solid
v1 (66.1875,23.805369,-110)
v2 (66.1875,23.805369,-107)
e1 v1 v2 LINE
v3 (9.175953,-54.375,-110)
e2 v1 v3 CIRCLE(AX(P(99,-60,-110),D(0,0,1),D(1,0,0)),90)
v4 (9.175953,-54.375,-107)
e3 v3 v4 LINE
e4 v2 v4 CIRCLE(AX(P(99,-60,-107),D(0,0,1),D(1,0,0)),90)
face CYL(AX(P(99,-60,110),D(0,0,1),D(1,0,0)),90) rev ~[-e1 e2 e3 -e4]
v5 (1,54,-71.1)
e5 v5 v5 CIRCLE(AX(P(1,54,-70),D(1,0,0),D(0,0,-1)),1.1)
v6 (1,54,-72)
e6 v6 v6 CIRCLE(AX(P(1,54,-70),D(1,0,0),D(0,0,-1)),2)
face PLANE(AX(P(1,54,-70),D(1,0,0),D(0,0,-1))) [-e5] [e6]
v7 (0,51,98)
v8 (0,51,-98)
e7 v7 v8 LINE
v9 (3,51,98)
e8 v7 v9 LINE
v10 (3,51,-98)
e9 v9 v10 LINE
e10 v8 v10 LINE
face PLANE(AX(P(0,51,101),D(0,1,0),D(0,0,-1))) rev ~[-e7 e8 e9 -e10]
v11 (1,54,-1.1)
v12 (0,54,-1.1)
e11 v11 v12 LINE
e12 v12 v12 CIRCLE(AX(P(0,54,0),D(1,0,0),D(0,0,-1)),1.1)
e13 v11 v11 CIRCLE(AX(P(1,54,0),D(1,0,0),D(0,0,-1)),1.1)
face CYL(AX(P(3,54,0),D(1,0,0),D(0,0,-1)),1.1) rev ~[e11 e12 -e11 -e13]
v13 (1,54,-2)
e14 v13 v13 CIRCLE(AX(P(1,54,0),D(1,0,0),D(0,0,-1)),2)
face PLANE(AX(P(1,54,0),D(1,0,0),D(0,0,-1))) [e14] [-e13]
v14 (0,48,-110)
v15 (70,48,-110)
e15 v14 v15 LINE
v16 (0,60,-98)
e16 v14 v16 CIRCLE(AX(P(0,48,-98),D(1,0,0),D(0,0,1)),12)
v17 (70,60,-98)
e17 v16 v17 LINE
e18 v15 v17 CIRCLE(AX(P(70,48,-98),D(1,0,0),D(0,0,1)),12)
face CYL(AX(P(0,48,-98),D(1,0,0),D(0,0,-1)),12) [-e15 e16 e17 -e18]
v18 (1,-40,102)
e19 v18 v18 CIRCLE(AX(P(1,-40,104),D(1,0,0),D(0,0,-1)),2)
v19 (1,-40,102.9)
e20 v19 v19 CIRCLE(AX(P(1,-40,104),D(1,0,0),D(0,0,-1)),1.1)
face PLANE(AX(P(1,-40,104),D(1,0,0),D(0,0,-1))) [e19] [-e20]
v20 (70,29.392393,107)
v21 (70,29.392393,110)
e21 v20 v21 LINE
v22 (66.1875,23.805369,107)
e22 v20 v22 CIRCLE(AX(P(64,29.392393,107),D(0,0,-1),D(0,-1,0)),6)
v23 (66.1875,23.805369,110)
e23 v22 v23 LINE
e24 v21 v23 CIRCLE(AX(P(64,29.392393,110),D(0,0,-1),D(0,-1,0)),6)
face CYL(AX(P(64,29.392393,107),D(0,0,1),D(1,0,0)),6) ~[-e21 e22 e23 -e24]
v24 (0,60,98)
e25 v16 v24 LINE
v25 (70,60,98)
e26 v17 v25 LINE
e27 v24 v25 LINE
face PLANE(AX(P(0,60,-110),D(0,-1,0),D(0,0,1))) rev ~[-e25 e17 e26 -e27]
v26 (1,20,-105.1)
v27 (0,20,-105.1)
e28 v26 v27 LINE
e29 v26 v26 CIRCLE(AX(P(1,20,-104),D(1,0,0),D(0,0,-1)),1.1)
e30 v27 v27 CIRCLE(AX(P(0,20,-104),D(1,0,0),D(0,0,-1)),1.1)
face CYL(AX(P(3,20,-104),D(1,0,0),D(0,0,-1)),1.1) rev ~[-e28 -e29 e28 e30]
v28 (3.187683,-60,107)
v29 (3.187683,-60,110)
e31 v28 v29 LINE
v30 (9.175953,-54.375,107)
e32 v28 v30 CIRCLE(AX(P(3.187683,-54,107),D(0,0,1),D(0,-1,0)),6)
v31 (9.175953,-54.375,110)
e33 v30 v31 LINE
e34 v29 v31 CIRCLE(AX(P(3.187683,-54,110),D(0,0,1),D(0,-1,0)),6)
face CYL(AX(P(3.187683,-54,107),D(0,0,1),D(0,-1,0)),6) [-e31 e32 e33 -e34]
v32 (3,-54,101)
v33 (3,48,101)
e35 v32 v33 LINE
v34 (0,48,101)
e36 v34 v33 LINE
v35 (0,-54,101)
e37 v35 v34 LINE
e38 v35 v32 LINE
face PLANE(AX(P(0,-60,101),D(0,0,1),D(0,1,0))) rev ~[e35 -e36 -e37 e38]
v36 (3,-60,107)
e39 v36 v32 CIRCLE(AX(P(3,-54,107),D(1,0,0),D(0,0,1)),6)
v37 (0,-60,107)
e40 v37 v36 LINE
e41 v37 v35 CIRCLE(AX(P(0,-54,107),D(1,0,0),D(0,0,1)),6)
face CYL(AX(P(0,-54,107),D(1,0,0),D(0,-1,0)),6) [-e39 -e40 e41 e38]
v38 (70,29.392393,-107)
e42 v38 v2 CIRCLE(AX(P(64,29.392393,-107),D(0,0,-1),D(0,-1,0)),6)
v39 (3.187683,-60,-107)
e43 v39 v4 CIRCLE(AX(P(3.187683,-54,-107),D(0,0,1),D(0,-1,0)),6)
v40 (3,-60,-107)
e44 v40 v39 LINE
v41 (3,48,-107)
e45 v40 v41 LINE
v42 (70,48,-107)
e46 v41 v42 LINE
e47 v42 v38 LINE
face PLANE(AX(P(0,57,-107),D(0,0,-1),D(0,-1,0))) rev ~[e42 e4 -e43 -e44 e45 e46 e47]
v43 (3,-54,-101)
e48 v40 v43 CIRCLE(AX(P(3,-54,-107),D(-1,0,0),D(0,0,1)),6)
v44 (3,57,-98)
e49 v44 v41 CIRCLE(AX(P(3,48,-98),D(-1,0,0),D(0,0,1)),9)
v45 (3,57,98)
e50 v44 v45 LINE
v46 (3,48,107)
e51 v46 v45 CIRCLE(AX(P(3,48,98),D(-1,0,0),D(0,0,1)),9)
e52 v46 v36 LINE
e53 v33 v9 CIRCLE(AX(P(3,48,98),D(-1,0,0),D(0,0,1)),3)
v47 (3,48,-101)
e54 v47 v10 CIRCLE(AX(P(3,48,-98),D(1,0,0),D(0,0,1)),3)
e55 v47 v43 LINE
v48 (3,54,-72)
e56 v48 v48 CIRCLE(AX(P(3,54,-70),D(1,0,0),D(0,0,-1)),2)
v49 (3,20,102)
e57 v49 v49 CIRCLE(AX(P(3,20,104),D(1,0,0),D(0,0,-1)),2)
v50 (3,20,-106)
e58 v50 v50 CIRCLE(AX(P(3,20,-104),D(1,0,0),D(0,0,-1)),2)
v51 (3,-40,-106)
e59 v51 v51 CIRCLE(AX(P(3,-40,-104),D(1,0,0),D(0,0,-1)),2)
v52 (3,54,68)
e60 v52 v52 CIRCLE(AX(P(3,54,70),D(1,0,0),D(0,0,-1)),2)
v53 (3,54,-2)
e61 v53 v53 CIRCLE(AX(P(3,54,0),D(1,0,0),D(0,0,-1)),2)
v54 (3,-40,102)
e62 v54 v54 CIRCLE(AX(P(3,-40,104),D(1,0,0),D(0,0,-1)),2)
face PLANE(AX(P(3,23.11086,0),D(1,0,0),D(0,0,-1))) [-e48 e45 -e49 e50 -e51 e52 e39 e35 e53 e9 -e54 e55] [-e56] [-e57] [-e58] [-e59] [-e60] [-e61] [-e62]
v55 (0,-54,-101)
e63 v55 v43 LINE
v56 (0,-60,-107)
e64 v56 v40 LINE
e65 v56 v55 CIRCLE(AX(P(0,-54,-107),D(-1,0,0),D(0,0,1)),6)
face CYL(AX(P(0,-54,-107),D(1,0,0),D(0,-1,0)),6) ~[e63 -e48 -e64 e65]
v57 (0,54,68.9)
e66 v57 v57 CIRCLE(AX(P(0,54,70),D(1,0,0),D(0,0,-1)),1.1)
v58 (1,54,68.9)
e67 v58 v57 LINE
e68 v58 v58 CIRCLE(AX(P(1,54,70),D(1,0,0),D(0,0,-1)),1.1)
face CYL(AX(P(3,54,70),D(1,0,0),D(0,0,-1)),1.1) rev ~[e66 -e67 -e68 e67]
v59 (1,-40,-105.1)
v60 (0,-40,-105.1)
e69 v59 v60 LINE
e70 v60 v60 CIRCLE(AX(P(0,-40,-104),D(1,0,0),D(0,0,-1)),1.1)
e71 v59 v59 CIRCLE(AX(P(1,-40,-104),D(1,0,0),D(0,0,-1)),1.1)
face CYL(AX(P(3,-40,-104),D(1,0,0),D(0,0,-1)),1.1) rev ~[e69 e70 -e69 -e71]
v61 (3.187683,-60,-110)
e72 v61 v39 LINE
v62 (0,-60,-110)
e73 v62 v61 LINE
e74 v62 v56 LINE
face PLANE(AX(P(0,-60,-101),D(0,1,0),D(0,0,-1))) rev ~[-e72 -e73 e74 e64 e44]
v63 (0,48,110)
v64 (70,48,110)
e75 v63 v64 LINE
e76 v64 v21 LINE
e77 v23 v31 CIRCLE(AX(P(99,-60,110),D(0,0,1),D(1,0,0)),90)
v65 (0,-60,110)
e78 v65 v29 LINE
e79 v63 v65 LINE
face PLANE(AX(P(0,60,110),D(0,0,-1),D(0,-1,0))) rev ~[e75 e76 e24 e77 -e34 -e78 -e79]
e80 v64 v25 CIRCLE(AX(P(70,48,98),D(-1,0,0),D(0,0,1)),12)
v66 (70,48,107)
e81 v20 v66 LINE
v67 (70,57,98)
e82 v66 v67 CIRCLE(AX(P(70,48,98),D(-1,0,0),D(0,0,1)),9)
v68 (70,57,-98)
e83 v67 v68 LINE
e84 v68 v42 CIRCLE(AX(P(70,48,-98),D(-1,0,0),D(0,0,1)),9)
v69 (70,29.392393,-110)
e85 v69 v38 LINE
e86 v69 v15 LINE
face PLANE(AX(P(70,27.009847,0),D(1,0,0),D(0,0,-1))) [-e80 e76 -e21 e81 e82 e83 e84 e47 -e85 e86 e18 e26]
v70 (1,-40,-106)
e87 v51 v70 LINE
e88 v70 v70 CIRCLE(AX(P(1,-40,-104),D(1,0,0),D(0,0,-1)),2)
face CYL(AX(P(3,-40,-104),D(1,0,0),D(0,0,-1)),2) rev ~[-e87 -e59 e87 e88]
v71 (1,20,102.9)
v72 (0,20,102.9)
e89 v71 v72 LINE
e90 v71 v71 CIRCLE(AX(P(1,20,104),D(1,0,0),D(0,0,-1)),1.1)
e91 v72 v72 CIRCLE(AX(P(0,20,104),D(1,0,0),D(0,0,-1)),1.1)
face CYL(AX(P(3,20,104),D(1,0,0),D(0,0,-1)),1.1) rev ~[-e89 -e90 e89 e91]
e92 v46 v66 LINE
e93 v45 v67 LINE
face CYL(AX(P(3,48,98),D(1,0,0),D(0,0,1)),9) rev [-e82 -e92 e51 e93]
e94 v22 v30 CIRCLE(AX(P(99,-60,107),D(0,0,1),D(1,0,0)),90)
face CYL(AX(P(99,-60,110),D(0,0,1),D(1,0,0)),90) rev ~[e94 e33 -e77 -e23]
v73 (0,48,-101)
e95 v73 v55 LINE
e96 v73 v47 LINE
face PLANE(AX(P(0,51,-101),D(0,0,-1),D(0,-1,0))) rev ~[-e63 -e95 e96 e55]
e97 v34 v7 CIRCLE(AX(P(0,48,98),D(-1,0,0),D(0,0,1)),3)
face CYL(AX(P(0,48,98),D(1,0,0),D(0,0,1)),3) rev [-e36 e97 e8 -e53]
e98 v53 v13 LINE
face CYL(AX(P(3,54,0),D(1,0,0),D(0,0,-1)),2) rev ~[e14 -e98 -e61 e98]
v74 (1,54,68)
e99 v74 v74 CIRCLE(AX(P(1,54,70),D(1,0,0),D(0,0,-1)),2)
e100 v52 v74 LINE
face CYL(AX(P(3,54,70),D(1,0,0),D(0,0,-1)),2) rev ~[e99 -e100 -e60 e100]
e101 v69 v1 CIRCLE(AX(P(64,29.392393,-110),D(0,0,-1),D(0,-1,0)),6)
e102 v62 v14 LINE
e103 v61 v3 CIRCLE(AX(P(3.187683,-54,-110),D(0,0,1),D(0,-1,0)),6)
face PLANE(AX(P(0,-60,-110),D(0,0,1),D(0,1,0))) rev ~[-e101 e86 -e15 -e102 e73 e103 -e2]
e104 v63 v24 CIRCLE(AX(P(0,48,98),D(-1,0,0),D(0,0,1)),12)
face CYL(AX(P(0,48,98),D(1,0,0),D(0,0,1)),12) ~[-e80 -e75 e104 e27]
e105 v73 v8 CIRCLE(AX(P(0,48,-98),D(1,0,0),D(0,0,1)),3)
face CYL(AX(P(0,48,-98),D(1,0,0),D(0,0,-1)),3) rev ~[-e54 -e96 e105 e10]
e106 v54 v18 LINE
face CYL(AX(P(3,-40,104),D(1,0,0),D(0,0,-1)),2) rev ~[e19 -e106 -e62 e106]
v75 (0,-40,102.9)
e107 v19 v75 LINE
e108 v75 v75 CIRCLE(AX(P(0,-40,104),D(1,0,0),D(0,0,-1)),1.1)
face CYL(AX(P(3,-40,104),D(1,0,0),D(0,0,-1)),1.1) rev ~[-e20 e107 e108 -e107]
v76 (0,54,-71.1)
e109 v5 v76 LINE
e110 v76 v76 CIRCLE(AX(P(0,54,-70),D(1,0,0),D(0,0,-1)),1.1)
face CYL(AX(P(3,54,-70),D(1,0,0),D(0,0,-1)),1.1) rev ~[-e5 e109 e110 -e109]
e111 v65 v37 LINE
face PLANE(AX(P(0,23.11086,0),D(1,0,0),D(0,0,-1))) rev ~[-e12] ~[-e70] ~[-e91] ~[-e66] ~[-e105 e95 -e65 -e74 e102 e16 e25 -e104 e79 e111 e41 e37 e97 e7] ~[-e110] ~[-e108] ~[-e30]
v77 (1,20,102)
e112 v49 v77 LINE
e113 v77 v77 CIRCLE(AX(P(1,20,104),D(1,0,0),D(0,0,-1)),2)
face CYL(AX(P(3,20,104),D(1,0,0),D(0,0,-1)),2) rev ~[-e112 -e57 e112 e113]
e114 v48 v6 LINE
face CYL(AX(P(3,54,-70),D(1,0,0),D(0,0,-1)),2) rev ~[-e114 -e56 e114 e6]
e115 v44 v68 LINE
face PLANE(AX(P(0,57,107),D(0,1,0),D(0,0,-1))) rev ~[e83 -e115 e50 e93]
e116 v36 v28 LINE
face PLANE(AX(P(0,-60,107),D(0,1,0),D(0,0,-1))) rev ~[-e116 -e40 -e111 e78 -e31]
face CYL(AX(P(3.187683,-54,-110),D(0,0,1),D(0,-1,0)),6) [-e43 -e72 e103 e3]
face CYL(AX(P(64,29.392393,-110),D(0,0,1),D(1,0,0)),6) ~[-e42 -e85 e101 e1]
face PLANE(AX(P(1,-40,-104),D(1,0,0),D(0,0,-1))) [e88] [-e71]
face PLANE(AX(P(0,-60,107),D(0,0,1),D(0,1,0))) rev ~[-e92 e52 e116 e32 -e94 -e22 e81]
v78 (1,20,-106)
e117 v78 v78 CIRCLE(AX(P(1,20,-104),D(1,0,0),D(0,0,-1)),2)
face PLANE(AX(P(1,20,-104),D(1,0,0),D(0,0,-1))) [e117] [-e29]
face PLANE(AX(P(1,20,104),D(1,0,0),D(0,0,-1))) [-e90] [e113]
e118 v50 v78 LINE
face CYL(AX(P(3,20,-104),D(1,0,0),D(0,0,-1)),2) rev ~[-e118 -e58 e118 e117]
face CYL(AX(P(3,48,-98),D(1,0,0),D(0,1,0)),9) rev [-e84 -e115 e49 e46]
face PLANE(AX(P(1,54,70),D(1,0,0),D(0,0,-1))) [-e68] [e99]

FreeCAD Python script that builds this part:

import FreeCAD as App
import Part
import Sketcher
Q = App.Units.Quantity


def edges_at(feature, points):
    """Names of the edges that pass closest to the given points."""
    edges = feature.Shape.Edges
    near = lambda p: min(range(len(edges)), key=lambda i: edges[i].distToShape(Part.Vertex(*p))[0])
    return sorted({f"Edge{near(p) + 1}" for p in points})


def add_polygon(sketch, points):
    """Adds a closed chain of lines whose ends are joined by coincident constraints."""
    first, n = sketch.GeometryCount, len(points)
    for a, b in zip(points, points[1:] + points[:1]):
        sketch.addGeometry(Part.LineSegment(App.Vector(*a, 0), App.Vector(*b, 0)), False)
    for i in range(n):
        sketch.addConstraint(Sketcher.Constraint("Coincident", first + i, 2, first + (i + 1) % n, 1))

doc = App.newDocument("Part")
body = doc.addObject("PartDesign::Body", "Body")

sketch1 = body.newObject("Sketcher::SketchObject", "Sketch")
sketch1.AttachmentSupport = (doc.getObject("YZ_Plane"), [""])
sketch1.MapMode = "FlatFace"
add_polygon(sketch1, [(-60, 107), (57, 107), (57, -107), (-60, -107), (-60, -110), (60, -110), (60, 110), (-60, 110)])
sketch1.addConstraint([
    Sketcher.Constraint("Horizontal", 0),
    Sketcher.Constraint("Vertical", 1),
    Sketcher.Constraint("Horizontal", 2),
    Sketcher.Constraint("Vertical", 3),
    Sketcher.Constraint("Horizontal", 4),
    Sketcher.Constraint("Vertical", 5),
    Sketcher.Constraint("Horizontal", 6),
    Sketcher.Constraint("Vertical", 7),
    Sketcher.Constraint("Symmetric", 3, 2, 5, 2, -1, 1),
    Sketcher.Constraint("Symmetric", 2, 2, 7, 2, -1),
    Sketcher.Constraint("DistanceX", 0, 1, 0, 2, Q("117 mm")),
    Sketcher.Constraint("DistanceX", 4, 1, 4, 2, Q("120 mm")),
    Sketcher.Constraint("DistanceY", 1, 2, 1, 1, Q("214 mm")),
    Sketcher.Constraint("DistanceY", 3, 2, 3, 1, Q("3 mm")),
])
pad1 = body.newObject("PartDesign::Pad", "Pad")
pad1.Profile = sketch1
pad1.Length = 70

sketch2 = body.newObject("Sketcher::SketchObject", "Sketch001")
sketch2.AttachmentSupport = (doc.getObject("YZ_Plane"), [""])
sketch2.MapMode = "FlatFace"
add_polygon(sketch2, [(57, -107), (57, 107), (-60, 107), (-60, 101), (51, 101), (51, -101), (-60, -101), (-60, -107)])
sketch2.addConstraint([
    Sketcher.Constraint("Vertical", 0),
    Sketcher.Constraint("Horizontal", 1),
    Sketcher.Constraint("Vertical", 2),
    Sketcher.Constraint("Horizontal", 3),
    Sketcher.Constraint("Vertical", 4),
    Sketcher.Constraint("Horizontal", 5),
    Sketcher.Constraint("Vertical", 6),
    Sketcher.Constraint("Horizontal", 7),
    Sketcher.Constraint("Symmetric", 2, 2, 5, 2, -1),
    Sketcher.Constraint("Equal", 2, 6),
    Sketcher.Constraint("DistanceX", 1, 2, 1, 1, Q("117 mm")),
    Sketcher.Constraint("DistanceX", 3, 1, 3, 2, Q("111 mm")),
    Sketcher.Constraint("DistanceY", 0, 1, 0, 2, Q("214 mm")),
    Sketcher.Constraint("DistanceY", 2, 2, 2, 1, Q("6 mm")),
    Sketcher.Constraint("DistanceX", -1, 1, 0, 2, Q("57 mm")),
])
pad2 = body.newObject("PartDesign::Pad", "Pad001")
pad2.Profile = sketch2
pad2.Length = 3

sketch3 = body.newObject("Sketcher::SketchObject", "Sketch002")
sketch3.AttachmentSupport = (doc.getObject("XY_Plane"), [""])
sketch3.MapMode = "FlatFace"
sketch3.AttachmentOffset = App.Placement(App.Vector(0, 0, 110), App.Rotation())
sketch3.addGeometry(Part.Circle(App.Vector(99, -60, 0), App.Vector(0, 0, 1), 90), False)
sketch3.addConstraint([
    Sketcher.Constraint("Diameter", 0, Q("180 mm")),
    Sketcher.Constraint("DistanceX", -1, 1, 0, 3, Q("99 mm")),
    Sketcher.Constraint("DistanceY", 0, 3, -1, 1, Q("60 mm")),
])
pocket1 = body.newObject("PartDesign::Pocket", "Pocket")
pocket1.Profile = sketch3
pocket1.Type = "ThroughAll"
doc.recompute()

fillet = body.newObject("PartDesign::Fillet", "Fillet")
fillet.Base = (pocket1, edges_at(pocket1, [(36.5, 57, -107), (36.5, 57, 107)]))
fillet.Radius = 9
doc.recompute()

fillet2 = body.newObject("PartDesign::Fillet", "Fillet001")
fillet2.Base = (fillet, edges_at(fillet, [(1.5, 51, -101), (1.5, 51, 101)]))
fillet2.Radius = 3
doc.recompute()

fillet3 = body.newObject("PartDesign::Fillet", "Fillet002")
fillet3.Base = (fillet2, edges_at(fillet2, [(35, 60, 110), (35, 60, -110)]))
fillet3.Radius = 12
doc.recompute()

fillet4 = body.newObject("PartDesign::Fillet", "Fillet003")
fillet4.Base = (fillet3, edges_at(fillet3, [
    (1.5, -60, 101),
    (9, -60, 108.5),
    (1.5, -60, -101),
    (9, -60, -108.5),
    (70, 25.2, -108.5),
    (70, 25.2, 108.5),
]))
fillet4.Radius = 6

sketch4 = body.newObject("Sketcher::SketchObject", "Sketch003")
sketch4.AttachmentSupport = (doc.getObject("YZ_Plane"), [""])
sketch4.MapMode = "FlatFace"
sketch4.AttachmentOffset = App.Placement(App.Vector(0, 0, 3), App.Rotation())
sketch4.addGeometry([
    Part.Circle(App.Vector(-40, 104, 0), App.Vector(0, 0, 1), 2),
    Part.Circle(App.Vector(20, 104, 0), App.Vector(0, 0, 1), 2),
    Part.Circle(App.Vector(54, 70, 0), App.Vector(0, 0, 1), 2),
    Part.Circle(App.Vector(54, 0, 0), App.Vector(0, 0, 1), 2),
    Part.Circle(App.Vector(54, -70, 0), App.Vector(0, 0, 1), 2),
    Part.Circle(App.Vector(20, -104, 0), App.Vector(0, 0, 1), 2),
    Part.Circle(App.Vector(-40, -104, 0), App.Vector(0, 0, 1), 2),
], False)
sketch4.addConstraint([
    Sketcher.Constraint("Equal", 0, 1),
    Sketcher.Constraint("Equal", 1, 2),
    Sketcher.Constraint("Equal", 2, 3),
    Sketcher.Constraint("Equal", 3, 4),
    Sketcher.Constraint("Equal", 4, 5),
    Sketcher.Constraint("Equal", 5, 6),
    Sketcher.Constraint("Symmetric", 2, 3, 4, 3, -1),
    Sketcher.Constraint("Symmetric", 1, 3, 5, 3, -1),
    Sketcher.Constraint("Symmetric", 0, 3, 6, 3, -1),
    Sketcher.Constraint("PointOnObject", 3, 3, -1),
    Sketcher.Constraint("Horizontal", 0, 3, 1, 3),
    Sketcher.Constraint("Vertical", 2, 3, 3, 3),
    Sketcher.Constraint("Diameter", 0, Q("4 mm")),
    Sketcher.Constraint("DistanceX", 0, 3, -1, 1, Q("40 mm")),
    Sketcher.Constraint("DistanceY", -1, 1, 0, 3, Q("104 mm")),
    Sketcher.Constraint("DistanceX", -1, 1, 1, 3, Q("20 mm")),
    Sketcher.Constraint("DistanceX", -1, 1, 2, 3, Q("54 mm")),
    Sketcher.Constraint("DistanceY", -1, 1, 2, 3, Q("70 mm")),
])
pocket2 = body.newObject("PartDesign::Pocket", "Pocket001")
pocket2.Profile = sketch4
pocket2.Length = 2

sketch5 = body.newObject("Sketcher::SketchObject", "Sketch004")
sketch5.AttachmentSupport = (doc.getObject("YZ_Plane"), [""])
sketch5.MapMode = "FlatFace"
sketch5.AttachmentOffset = App.Placement(App.Vector(0, 0, 3), App.Rotation())
sketch5.addGeometry([
    Part.Circle(App.Vector(-40, 104, 0), App.Vector(0, 0, 1), 1.1),
    Part.Circle(App.Vector(20, 104, 0), App.Vector(0, 0, 1), 1.1),
    Part.Circle(App.Vector(54, 70, 0), App.Vector(0, 0, 1), 1.1),
    Part.Circle(App.Vector(54, 0, 0), App.Vector(0, 0, 1), 1.1),
    Part.Circle(App.Vector(54, -70, 0), App.Vector(0, 0, 1), 1.1),
    Part.Circle(App.Vector(20, -104, 0), App.Vector(0, 0, 1), 1.1),
    Part.Circle(App.Vector(-40, -104, 0), App.Vector(0, 0, 1), 1.1),
], False)
sketch5.addConstraint([
    Sketcher.Constraint("Equal", 0, 1),
    Sketcher.Constraint("Equal", 1, 2),
    Sketcher.Constraint("Equal", 2, 3),
    Sketcher.Constraint("Equal", 3, 4),
    Sketcher.Constraint("Equal", 4, 5),
    Sketcher.Constraint("Equal", 5, 6),
    Sketcher.Constraint("Symmetric", 2, 3, 4, 3, -1),
    Sketcher.Constraint("Symmetric", 1, 3, 5, 3, -1),
    Sketcher.Constraint("Symmetric", 0, 3, 6, 3, -1),
    Sketcher.Constraint("PointOnObject", 3, 3, -1),
    Sketcher.Constraint("Horizontal", 0, 3, 1, 3),
    Sketcher.Constraint("Vertical", 2, 3, 3, 3),
    Sketcher.Constraint("Diameter", 0, Q("2.2 mm")),
    Sketcher.Constraint("DistanceX", 0, 3, -1, 1, Q("40 mm")),
    Sketcher.Constraint("DistanceY", -1, 1, 0, 3, Q("104 mm")),
    Sketcher.Constraint("DistanceX", -1, 1, 1, 3, Q("20 mm")),
    Sketcher.Constraint("DistanceX", -1, 1, 2, 3, Q("54 mm")),
    Sketcher.Constraint("DistanceY", -1, 1, 2, 3, Q("70 mm")),
])
pocket3 = body.newObject("PartDesign::Pocket", "Pocket002")
pocket3.Profile = sketch5
pocket3.Length = 3

doc.recompute()
